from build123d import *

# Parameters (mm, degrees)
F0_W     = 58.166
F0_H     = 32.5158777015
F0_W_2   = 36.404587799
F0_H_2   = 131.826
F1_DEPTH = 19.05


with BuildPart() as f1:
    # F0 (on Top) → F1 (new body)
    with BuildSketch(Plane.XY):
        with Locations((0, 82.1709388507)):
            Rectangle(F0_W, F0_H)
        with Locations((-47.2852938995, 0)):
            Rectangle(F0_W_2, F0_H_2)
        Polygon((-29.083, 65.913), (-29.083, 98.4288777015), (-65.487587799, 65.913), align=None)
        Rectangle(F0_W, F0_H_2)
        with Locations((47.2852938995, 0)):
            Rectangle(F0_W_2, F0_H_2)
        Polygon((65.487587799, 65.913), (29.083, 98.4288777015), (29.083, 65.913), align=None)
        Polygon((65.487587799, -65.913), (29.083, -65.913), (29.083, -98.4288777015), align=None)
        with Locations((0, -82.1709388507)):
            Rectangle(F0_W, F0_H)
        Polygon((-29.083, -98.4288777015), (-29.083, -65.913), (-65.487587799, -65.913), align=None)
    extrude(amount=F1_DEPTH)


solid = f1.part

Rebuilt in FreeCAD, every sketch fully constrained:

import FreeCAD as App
import Part
import Sketcher
from FreeCAD import Vector
Q = App.Units.Quantity

doc = App.newDocument("Part")
body = doc.addObject("PartDesign::Body", "Body")

sketch1 = body.newObject("Sketcher::SketchObject", "Sketch")
sketch1.AttachmentSupport = (doc.getObject("XY_Plane"), [""])
sketch1.MapMode = "FlatFace"
sketch1.addGeometry([
    Part.LineSegment(Vector(29, 98, 0), Vector(-29, 98, 0)),
    Part.LineSegment(Vector(-29, 98, 0), Vector(-65, 66, 0)),
    Part.LineSegment(Vector(-65, 66, 0), Vector(-65, -66, 0)),
    Part.LineSegment(Vector(-65, -66, 0), Vector(-29, -98, 0)),
    Part.LineSegment(Vector(-29, -98, 0), Vector(29, -98, 0)),
    Part.LineSegment(Vector(29, -98, 0), Vector(65, -66, 0)),
    Part.LineSegment(Vector(65, -66, 0), Vector(65, 66, 0)),
    Part.LineSegment(Vector(65, 66, 0), Vector(29, 98, 0)),
], False)
sketch1.addConstraint([
    Sketcher.Constraint("Coincident", 0, 2, 1, 1),
    Sketcher.Constraint("Coincident", 1, 2, 2, 1),
    Sketcher.Constraint("Coincident", 2, 2, 3, 1),
    Sketcher.Constraint("Coincident", 3, 2, 4, 1),
    Sketcher.Constraint("Coincident", 4, 2, 5, 1),
    Sketcher.Constraint("Coincident", 5, 2, 6, 1),
    Sketcher.Constraint("Coincident", 6, 2, 7, 1),
    Sketcher.Constraint("Coincident", 7, 2, 0, 1),
    Sketcher.Constraint("Horizontal", 0),
    Sketcher.Constraint("Vertical", 2),
    Sketcher.Constraint("Horizontal", 4),
    Sketcher.Constraint("Vertical", 6),
    Sketcher.Constraint("Symmetric", 0, 2, 4, 2, -1, 1),
    Sketcher.Constraint("Symmetric", 1, 2, 5, 2, -1, 1),
    Sketcher.Constraint("Parallel", 3, 7),
    Sketcher.Constraint("Horizontal", 2, 2, 5, 2),
    Sketcher.Constraint("Horizontal", 1, 2, 6, 2),
    Sketcher.Constraint("Vertical", 0, 2, 3, 2),
    Sketcher.Constraint("DistanceX", 0, 2, 0, 1, Q("2.29 in")),
    Sketcher.Constraint("DistanceY", 2, 2, 2, 1, Q("5.19 in")),
    Sketcher.Constraint("Distance", 1, Q("48.811641 mm")),
    Sketcher.Constraint("DistanceY", -1, 1, 0, 2, Q("98.428878 mm")),
])
pad1 = body.newObject("PartDesign::Pad", "Pad")
pad1.Profile = sketch1
pad1.Length = Q("0.75 in")

doc.recompute()
